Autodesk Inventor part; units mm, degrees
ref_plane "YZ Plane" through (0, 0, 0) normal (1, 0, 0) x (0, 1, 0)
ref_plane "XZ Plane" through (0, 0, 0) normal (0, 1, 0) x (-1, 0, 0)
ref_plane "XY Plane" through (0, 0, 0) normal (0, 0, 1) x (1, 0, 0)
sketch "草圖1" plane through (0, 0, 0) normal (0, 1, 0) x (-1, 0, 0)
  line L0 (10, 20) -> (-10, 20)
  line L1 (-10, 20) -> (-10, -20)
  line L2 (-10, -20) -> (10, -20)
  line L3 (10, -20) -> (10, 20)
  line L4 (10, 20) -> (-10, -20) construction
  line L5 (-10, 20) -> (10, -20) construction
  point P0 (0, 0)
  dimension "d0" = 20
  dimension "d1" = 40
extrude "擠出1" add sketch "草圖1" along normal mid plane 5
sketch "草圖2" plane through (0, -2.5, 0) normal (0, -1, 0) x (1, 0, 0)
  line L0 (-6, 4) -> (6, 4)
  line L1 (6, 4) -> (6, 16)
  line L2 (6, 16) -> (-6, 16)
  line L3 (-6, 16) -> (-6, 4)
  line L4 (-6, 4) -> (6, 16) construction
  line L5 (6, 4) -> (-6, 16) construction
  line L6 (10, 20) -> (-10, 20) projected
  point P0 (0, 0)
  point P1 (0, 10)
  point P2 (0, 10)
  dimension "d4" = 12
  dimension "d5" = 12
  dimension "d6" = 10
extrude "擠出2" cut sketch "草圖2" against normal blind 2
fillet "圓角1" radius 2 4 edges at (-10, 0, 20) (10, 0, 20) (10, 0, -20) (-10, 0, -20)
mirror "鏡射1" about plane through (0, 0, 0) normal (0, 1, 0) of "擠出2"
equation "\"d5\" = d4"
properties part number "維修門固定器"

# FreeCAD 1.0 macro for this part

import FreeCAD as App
import Part
import Sketcher

V = App.Vector


def edges_at(feature, points):
    """Names of the edges that pass closest to the given points."""
    edges = feature.Shape.Edges
    near = lambda p: min(range(len(edges)), key=lambda i: edges[i].distToShape(Part.Vertex(*p))[0])
    return sorted({f"Edge{near(p) + 1}" for p in points})

doc = App.newDocument("Part")
body = doc.addObject("PartDesign::Body", "Body")

# Sketch on XZ plane
sketch1 = body.newObject("Sketcher::SketchObject", "Sketch")
sketch1.AttachmentSupport = (doc.getObject("XZ_Plane"), [""])
sketch1.MapMode = "FlatFace"
sketch1.addGeometry(Part.LineSegment(V(-10, -20, 0), V(-10, 20, 0)), False)
sketch1.addGeometry(Part.LineSegment(V(-10, 20, 0), V(10, 20, 0)), False)
sketch1.addGeometry(Part.LineSegment(V(10, 20, 0), V(10, -20, 0)), False)
sketch1.addGeometry(Part.LineSegment(V(10, -20, 0), V(-10, -20, 0)), False)
sketch1.addConstraint(Sketcher.Constraint("Coincident", 0, 2, 1, 1))
sketch1.addConstraint(Sketcher.Constraint("Coincident", 1, 2, 2, 1))
sketch1.addConstraint(Sketcher.Constraint("Coincident", 2, 2, 3, 1))
sketch1.addConstraint(Sketcher.Constraint("Coincident", 3, 2, 0, 1))
sketch1.addConstraint(Sketcher.Constraint("Vertical", 0))
sketch1.addConstraint(Sketcher.Constraint("Horizontal", 1))
sketch1.addConstraint(Sketcher.Constraint("Vertical", 2))
sketch1.addConstraint(Sketcher.Constraint("Horizontal", 3))
sketch1.addConstraint(Sketcher.Constraint("Symmetric", 0, 2, 2, 2, -1, 1))
sketch1.addConstraint(Sketcher.Constraint("DistanceX", 1, 1, 1, 2, 20.0))
sketch1.addConstraint(Sketcher.Constraint("DistanceY", 0, 1, 0, 2, 40.0))
pad1 = body.newObject("PartDesign::Pad", "Pad")
pad1.Profile = sketch1
pad1.Length = 5
pad1.Midplane = True

# Sketch on XZ plane
sketch2 = body.newObject("Sketcher::SketchObject", "Sketch001")
sketch2.AttachmentSupport = (doc.getObject("XZ_Plane"), [""])
sketch2.MapMode = "FlatFace"
sketch2.AttachmentOffset = App.Placement(V(0, 0, 2.5), App.Rotation())
sketch2.addGeometry(Part.LineSegment(V(-6, 16, 0), V(-6, 4, 0)), False)
sketch2.addGeometry(Part.LineSegment(V(-6, 4, 0), V(6, 4, 0)), False)
sketch2.addGeometry(Part.LineSegment(V(6, 4, 0), V(6, 16, 0)), False)
sketch2.addGeometry(Part.LineSegment(V(6, 16, 0), V(-6, 16, 0)), False)
sketch2.addConstraint(Sketcher.Constraint("Coincident", 0, 2, 1, 1))
sketch2.addConstraint(Sketcher.Constraint("Coincident", 1, 2, 2, 1))
sketch2.addConstraint(Sketcher.Constraint("Coincident", 2, 2, 3, 1))
sketch2.addConstraint(Sketcher.Constraint("Coincident", 3, 2, 0, 1))
sketch2.addConstraint(Sketcher.Constraint("Vertical", 0))
sketch2.addConstraint(Sketcher.Constraint("Horizontal", 1))
sketch2.addConstraint(Sketcher.Constraint("Vertical", 2))
sketch2.addConstraint(Sketcher.Constraint("Horizontal", 3))
sketch2.addConstraint(Sketcher.Constraint("Equal", 3, 0))
sketch2.addConstraint(Sketcher.Constraint("DistanceX", 1, 1, 1, 2, 12.0))
sketch2.addConstraint(Sketcher.Constraint("DistanceX", 0, 2, -1, 1, 6.0))
sketch2.addConstraint(Sketcher.Constraint("DistanceY", -1, 1, 0, 2, 4.0))
pocket1 = body.newObject("PartDesign::Pocket", "Pocket")
pocket1.Profile = sketch2
pocket1.Length = 2
doc.recompute()

fillet = body.newObject("PartDesign::Fillet", "Fillet")
fillet.Base = (pocket1, edges_at(pocket1, [
    (-10, 0, 20),
    (10, 0, 20),
    (10, 0, -20),
    (-10, 0, -20),
]))
fillet.Radius = 2
doc.recompute()

mirrored = body.newObject("PartDesign::Mirrored", "Mirrored")
mirrored.Originals = [pocket1]
mirrored.MirrorPlane = (doc.getObject("XZ_Plane"), [""])
body.Tip = mirrored

doc.recompute()
